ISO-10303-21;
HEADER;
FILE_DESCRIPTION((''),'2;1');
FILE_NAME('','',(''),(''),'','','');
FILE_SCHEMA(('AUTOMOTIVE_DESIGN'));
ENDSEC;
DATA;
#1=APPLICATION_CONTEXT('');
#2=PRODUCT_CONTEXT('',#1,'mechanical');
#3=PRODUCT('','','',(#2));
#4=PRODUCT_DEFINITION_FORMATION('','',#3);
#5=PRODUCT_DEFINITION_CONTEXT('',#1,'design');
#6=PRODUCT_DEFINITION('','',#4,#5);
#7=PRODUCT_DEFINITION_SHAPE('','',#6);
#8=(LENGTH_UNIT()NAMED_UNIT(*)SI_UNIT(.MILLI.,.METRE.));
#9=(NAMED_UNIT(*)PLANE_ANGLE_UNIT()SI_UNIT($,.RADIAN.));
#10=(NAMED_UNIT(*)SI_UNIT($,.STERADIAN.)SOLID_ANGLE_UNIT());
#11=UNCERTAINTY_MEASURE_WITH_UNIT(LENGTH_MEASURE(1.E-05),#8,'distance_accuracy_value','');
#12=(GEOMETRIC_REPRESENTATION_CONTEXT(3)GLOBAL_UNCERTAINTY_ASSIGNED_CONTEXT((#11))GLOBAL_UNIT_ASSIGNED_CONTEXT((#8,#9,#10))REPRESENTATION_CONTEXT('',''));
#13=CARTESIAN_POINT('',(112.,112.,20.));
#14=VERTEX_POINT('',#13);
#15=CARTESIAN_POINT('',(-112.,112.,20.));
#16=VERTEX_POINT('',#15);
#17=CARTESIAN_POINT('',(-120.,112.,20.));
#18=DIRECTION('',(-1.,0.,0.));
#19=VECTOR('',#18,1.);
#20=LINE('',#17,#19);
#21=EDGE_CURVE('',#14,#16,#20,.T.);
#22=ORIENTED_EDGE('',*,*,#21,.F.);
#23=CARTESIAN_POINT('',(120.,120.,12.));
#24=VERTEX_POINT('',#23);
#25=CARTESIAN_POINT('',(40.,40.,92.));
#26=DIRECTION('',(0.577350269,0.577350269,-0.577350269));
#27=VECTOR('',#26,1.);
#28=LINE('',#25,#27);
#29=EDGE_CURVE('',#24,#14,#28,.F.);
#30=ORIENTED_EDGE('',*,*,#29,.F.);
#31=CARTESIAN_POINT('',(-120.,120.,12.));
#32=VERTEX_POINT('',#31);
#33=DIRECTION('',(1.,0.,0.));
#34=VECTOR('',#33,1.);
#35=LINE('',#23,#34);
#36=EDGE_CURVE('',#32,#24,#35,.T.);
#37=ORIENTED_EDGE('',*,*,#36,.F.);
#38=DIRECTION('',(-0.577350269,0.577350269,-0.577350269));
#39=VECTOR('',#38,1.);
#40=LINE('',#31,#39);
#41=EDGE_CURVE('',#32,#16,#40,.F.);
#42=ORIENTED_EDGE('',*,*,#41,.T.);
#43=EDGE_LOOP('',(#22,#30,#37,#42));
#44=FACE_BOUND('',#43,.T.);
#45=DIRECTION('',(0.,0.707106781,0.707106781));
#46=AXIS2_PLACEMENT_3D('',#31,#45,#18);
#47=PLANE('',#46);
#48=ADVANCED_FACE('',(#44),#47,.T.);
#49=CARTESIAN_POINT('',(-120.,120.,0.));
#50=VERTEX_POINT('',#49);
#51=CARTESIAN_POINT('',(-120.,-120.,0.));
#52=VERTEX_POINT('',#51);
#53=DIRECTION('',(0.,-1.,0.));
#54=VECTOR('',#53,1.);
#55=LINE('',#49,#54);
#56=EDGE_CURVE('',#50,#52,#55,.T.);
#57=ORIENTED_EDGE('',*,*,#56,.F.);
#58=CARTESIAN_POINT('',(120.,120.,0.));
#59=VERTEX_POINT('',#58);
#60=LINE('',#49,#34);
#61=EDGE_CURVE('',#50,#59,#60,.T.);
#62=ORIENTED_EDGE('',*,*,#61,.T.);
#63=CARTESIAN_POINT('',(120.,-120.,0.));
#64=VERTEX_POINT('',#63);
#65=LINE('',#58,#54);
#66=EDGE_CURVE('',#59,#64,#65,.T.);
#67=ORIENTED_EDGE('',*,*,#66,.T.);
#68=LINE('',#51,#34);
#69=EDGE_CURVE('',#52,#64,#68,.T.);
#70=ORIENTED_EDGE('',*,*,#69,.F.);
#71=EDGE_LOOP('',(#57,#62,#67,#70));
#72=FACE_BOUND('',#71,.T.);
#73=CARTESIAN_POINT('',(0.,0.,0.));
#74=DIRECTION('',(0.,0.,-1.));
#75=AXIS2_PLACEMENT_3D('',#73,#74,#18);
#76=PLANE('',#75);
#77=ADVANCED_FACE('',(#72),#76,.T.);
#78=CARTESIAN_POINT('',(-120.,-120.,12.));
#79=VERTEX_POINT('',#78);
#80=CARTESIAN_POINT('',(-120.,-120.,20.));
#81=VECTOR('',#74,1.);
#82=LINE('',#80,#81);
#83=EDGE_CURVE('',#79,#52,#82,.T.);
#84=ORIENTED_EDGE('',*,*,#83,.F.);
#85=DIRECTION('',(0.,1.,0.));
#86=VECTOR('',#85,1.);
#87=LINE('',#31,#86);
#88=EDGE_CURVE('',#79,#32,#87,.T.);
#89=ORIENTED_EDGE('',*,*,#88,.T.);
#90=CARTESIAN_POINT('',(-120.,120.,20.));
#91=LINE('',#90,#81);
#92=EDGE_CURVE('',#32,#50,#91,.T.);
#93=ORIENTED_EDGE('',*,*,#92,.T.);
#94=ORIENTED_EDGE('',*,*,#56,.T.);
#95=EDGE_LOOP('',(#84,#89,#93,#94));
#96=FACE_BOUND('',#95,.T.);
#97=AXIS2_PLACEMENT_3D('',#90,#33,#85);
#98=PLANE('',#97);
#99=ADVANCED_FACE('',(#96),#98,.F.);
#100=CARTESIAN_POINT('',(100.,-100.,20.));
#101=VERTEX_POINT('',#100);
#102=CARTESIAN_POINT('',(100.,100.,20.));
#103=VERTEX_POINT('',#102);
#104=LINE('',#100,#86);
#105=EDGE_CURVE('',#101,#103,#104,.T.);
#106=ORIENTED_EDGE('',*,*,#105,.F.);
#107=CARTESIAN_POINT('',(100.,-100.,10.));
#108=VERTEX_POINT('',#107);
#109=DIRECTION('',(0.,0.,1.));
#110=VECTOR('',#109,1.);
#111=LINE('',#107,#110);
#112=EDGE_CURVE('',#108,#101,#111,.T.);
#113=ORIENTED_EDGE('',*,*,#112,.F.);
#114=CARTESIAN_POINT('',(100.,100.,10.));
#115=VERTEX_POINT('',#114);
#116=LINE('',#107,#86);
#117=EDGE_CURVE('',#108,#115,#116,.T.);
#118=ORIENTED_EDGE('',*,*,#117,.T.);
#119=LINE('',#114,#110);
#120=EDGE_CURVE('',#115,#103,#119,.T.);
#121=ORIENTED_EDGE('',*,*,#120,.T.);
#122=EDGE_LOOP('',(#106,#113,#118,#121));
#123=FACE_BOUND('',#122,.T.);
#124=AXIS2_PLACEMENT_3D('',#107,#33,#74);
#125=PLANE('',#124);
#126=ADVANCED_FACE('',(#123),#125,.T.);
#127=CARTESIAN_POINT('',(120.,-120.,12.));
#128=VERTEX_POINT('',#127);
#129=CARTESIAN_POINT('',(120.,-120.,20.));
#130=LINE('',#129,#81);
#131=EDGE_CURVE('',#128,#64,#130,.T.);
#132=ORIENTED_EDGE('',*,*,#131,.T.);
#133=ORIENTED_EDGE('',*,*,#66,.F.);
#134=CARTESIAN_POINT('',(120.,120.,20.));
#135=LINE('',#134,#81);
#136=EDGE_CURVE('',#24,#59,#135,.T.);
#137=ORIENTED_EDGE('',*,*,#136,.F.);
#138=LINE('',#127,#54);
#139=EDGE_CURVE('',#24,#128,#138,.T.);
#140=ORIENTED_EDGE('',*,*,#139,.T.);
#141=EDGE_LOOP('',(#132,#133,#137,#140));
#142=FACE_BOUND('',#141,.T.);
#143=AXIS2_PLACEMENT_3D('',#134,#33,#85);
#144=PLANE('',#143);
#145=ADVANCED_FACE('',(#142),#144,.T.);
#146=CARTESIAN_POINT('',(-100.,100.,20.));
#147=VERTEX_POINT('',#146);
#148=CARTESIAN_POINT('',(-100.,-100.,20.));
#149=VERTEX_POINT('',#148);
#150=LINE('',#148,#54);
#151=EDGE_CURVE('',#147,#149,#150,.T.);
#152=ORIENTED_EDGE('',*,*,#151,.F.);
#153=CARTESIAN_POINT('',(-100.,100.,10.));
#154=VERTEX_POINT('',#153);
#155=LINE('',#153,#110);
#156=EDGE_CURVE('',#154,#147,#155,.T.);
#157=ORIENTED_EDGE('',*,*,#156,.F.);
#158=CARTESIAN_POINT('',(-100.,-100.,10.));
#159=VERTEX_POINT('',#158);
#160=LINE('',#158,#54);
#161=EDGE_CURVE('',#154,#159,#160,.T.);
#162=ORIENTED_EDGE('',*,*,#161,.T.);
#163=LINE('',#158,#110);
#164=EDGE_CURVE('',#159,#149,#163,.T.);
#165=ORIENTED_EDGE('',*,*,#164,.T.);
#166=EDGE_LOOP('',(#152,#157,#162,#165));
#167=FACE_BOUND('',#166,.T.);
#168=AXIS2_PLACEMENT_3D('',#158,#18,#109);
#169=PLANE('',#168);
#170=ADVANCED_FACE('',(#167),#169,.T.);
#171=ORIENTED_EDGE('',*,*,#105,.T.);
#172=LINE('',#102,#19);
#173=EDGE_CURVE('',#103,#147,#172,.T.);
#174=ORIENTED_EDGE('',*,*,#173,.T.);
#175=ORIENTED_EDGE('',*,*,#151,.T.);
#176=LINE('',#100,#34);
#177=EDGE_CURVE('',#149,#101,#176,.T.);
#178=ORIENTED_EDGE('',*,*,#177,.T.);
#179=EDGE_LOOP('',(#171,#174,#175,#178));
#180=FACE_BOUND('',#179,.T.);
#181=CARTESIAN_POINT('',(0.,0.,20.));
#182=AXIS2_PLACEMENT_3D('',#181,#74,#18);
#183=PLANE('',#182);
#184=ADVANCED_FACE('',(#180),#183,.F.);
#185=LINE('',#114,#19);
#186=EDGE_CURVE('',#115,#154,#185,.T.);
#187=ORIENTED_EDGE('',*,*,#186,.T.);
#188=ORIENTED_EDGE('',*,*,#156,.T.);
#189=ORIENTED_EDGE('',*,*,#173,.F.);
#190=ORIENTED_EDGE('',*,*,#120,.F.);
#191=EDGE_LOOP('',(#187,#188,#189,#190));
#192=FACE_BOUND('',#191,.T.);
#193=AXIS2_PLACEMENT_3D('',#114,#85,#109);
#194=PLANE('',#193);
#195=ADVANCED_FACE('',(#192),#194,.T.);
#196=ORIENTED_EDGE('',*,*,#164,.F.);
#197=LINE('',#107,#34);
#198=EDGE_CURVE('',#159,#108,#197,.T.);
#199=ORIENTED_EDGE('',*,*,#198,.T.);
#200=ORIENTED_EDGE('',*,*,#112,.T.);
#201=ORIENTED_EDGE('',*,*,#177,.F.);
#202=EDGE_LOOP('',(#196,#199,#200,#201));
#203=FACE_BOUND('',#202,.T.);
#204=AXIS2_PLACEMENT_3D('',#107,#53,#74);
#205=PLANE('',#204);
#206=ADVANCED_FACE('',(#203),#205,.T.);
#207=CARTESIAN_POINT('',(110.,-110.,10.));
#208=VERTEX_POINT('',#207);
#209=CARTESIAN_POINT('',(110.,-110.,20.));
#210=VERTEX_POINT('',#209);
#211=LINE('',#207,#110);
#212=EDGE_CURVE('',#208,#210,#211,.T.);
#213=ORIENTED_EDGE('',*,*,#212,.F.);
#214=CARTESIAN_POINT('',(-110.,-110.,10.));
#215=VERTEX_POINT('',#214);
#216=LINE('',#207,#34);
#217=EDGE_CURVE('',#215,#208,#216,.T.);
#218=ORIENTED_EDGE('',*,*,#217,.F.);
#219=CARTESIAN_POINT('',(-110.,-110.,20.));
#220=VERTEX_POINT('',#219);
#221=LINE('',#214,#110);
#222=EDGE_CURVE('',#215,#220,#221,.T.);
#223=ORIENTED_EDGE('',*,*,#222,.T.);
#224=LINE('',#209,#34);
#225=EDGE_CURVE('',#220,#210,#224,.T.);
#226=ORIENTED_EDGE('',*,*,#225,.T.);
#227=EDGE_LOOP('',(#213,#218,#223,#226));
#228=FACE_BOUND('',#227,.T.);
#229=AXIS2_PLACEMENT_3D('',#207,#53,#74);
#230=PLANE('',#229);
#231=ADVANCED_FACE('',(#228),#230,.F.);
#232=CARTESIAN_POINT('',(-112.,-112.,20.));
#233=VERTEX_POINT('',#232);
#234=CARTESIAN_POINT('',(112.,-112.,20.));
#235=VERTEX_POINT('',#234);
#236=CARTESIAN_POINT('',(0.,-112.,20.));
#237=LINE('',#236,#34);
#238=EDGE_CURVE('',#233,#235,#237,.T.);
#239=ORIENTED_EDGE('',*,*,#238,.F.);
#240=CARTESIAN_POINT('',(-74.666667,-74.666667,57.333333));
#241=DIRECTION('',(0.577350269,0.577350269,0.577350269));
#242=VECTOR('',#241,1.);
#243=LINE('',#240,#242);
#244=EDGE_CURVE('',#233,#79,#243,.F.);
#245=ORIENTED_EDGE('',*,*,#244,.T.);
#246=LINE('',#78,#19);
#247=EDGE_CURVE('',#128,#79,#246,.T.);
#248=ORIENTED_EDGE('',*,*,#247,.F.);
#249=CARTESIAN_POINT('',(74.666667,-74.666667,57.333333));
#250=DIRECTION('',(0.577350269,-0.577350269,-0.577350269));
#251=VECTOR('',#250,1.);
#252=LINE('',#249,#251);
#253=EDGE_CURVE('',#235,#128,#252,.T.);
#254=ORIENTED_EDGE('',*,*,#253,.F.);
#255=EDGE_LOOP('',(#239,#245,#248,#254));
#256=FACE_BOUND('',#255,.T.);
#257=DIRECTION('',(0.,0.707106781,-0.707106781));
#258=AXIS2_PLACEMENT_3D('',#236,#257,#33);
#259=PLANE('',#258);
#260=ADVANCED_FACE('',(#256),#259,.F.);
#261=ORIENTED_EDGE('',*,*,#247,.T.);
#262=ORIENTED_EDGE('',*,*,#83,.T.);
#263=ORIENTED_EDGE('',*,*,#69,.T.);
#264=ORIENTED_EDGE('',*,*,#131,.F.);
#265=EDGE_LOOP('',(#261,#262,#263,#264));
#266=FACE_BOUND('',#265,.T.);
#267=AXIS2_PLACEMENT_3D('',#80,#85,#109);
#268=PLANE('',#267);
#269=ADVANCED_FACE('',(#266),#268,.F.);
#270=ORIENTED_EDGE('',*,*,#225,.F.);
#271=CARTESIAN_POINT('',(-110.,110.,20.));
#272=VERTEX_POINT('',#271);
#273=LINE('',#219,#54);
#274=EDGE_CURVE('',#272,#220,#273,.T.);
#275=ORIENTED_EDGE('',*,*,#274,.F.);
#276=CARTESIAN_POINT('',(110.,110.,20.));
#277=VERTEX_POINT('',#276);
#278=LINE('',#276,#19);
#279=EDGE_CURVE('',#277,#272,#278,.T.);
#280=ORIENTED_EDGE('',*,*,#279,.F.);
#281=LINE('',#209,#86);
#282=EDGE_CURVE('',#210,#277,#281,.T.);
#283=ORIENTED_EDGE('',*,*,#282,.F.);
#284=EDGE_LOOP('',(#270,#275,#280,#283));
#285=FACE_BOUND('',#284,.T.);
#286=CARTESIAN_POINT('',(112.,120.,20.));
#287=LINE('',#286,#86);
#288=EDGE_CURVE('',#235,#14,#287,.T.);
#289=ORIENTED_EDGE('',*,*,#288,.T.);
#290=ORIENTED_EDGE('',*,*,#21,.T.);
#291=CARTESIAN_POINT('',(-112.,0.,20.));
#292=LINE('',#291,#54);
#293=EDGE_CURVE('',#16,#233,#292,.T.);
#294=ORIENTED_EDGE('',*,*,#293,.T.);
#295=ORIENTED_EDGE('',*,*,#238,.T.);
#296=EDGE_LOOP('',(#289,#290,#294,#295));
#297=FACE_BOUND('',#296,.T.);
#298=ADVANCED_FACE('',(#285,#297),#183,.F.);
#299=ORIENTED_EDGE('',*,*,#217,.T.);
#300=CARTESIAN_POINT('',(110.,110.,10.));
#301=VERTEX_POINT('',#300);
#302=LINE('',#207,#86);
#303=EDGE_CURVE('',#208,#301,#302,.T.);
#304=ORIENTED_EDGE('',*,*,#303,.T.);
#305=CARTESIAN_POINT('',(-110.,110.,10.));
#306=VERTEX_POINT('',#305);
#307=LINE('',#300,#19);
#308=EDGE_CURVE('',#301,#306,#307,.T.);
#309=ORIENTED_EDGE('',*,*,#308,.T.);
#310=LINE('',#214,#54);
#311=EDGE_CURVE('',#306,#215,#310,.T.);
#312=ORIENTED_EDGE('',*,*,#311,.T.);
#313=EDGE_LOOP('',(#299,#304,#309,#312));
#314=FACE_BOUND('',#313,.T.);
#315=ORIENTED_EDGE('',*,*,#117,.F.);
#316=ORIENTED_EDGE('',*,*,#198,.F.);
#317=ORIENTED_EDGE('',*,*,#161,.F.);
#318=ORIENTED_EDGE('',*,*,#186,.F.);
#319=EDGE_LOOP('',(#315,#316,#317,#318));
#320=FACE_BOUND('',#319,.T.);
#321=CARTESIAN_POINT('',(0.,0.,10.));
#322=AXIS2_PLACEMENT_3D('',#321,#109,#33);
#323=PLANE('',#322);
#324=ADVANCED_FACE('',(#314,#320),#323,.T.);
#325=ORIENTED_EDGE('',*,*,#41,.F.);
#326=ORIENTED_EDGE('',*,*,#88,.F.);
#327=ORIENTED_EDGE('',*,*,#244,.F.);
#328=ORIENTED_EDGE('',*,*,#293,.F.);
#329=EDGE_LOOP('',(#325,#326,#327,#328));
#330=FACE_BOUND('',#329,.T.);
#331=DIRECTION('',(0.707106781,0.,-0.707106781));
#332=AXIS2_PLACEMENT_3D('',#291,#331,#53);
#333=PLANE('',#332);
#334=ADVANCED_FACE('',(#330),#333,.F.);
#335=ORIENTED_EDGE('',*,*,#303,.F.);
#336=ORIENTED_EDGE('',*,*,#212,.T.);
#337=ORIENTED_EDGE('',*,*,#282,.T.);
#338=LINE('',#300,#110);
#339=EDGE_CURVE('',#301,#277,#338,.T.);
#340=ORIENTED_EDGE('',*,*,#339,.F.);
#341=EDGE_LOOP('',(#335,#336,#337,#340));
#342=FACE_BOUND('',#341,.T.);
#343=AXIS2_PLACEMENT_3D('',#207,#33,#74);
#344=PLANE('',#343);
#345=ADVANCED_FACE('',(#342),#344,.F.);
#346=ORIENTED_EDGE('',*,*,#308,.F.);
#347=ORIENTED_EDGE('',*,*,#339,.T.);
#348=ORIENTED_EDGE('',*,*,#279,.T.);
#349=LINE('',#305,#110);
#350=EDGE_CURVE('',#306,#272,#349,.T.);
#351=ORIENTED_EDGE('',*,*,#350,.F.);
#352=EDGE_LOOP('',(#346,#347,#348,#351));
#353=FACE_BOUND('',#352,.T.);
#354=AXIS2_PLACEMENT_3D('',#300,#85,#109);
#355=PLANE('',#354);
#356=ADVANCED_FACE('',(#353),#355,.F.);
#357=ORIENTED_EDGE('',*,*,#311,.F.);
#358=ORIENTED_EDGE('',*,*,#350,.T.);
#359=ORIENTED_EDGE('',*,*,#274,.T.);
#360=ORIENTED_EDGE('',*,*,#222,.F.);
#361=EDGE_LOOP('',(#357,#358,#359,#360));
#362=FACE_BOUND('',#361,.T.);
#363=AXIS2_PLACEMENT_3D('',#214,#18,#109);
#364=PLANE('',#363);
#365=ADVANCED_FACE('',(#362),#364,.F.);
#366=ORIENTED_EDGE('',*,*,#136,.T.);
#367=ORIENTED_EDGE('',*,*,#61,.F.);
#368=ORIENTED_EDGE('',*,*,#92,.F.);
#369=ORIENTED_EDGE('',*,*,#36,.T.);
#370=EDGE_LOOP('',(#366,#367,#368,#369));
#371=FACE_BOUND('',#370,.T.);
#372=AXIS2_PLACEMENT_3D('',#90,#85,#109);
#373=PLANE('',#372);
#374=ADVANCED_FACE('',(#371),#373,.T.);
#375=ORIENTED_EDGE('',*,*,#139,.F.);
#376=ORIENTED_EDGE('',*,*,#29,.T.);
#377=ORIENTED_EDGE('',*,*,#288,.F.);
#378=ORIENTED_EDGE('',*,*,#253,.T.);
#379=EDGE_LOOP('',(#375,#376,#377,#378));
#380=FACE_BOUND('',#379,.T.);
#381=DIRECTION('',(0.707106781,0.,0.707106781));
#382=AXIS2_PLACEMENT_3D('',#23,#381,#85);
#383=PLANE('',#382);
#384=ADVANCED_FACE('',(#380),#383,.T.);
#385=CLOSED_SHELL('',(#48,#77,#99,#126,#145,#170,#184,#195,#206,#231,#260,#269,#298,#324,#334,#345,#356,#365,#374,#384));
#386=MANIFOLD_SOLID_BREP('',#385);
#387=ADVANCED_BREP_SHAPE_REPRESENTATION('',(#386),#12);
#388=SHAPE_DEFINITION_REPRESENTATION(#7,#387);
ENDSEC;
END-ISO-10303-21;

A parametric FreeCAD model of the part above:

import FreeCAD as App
import Part
import Sketcher


def edges_at(feature, points):
    """Names of the edges that pass closest to the given points."""
    edges = feature.Shape.Edges
    near = lambda p: min(range(len(edges)), key=lambda i: edges[i].distToShape(Part.Vertex(*p))[0])
    return sorted({f"Edge{near(p) + 1}" for p in points})

doc = App.newDocument("Part")
body = doc.addObject("PartDesign::Body", "Body")

# Sketch on XY plane
sketch1 = body.newObject("Sketcher::SketchObject", "Sketch")
sketch1.AttachmentSupport = (doc.getObject("XY_Plane"), [""])
sketch1.MapMode = "FlatFace"
sketch1.addGeometry([
    Part.LineSegment(App.Vector(-120, 120, 0), App.Vector(-120, -120, 0)),
    Part.LineSegment(App.Vector(-120, -120, 0), App.Vector(120, -120, 0)),
    Part.LineSegment(App.Vector(120, -120, 0), App.Vector(120, 120, 0)),
    Part.LineSegment(App.Vector(120, 120, 0), App.Vector(-120, 120, 0)),
], False)
sketch1.addConstraint([
    Sketcher.Constraint("Coincident", 0, 2, 1, 1),
    Sketcher.Constraint("Coincident", 1, 2, 2, 1),
    Sketcher.Constraint("Coincident", 2, 2, 3, 1),
    Sketcher.Constraint("Coincident", 3, 2, 0, 1),
    Sketcher.Constraint("Vertical", 0),
    Sketcher.Constraint("Horizontal", 1),
    Sketcher.Constraint("Vertical", 2),
    Sketcher.Constraint("Horizontal", 3),
    Sketcher.Constraint("Symmetric", 0, 2, 2, 2, -1, 1),
    Sketcher.Constraint("Equal", 3, 0),
    Sketcher.Constraint("DistanceX", 1, 1, 1, 2, 240.0),
])
pad1 = body.newObject("PartDesign::Pad", "Pad")
pad1.Profile = sketch1
pad1.Length = 20
doc.recompute()

chamfer = body.newObject("PartDesign::Chamfer", "Chamfer")
chamfer.Base = (pad1, edges_at(pad1, [
    (0, -120, 20),
    (-120, 0, 20),
    (0, 120, 20),
    (120, 0, 20),
]))
chamfer.Size = 8

# Sketch on XY plane
sketch2 = body.newObject("Sketcher::SketchObject", "Sketch001")
sketch2.AttachmentSupport = (doc.getObject("XY_Plane"), [""])
sketch2.MapMode = "FlatFace"
sketch2.AttachmentOffset = App.Placement(App.Vector(0, 0, 20), App.Rotation())
sketch2.addGeometry([
    Part.LineSegment(App.Vector(-110, 110, 0), App.Vector(-110, -110, 0)),  # 0
    Part.LineSegment(App.Vector(-110, -110, 0), App.Vector(110, -110, 0)),  # 1
    Part.LineSegment(App.Vector(110, -110, 0), App.Vector(110, 110, 0)),  # 2
    Part.LineSegment(App.Vector(110, 110, 0), App.Vector(-110, 110, 0)),  # 3
    Part.LineSegment(App.Vector(100, -100, 0), App.Vector(-100, -100, 0)),  # 4
    Part.LineSegment(App.Vector(-100, -100, 0), App.Vector(-100, 100, 0)),  # 5
    Part.LineSegment(App.Vector(-100, 100, 0), App.Vector(100, 100, 0)),  # 6
    Part.LineSegment(App.Vector(100, 100, 0), App.Vector(100, -100, 0)),  # 7
], False)
sketch2.addConstraint([
    Sketcher.Constraint("Coincident", 0, 2, 1, 1),
    Sketcher.Constraint("Coincident", 1, 2, 2, 1),
    Sketcher.Constraint("Coincident", 2, 2, 3, 1),
    Sketcher.Constraint("Coincident", 3, 2, 0, 1),
    Sketcher.Constraint("Coincident", 4, 2, 5, 1),
    Sketcher.Constraint("Coincident", 5, 2, 6, 1),
    Sketcher.Constraint("Coincident", 6, 2, 7, 1),
    Sketcher.Constraint("Coincident", 7, 2, 4, 1),
    Sketcher.Constraint("Vertical", 0),
    Sketcher.Constraint("Horizontal", 1),
    Sketcher.Constraint("Vertical", 2),
    Sketcher.Constraint("Horizontal", 3),
    Sketcher.Constraint("Horizontal", 4),
    Sketcher.Constraint("Vertical", 5),
    Sketcher.Constraint("Horizontal", 6),
    Sketcher.Constraint("Vertical", 7),
    Sketcher.Constraint("Symmetric", 0, 2, 2, 2, -1, 1),
    Sketcher.Constraint("Symmetric", 4, 2, 6, 2, -1, 1),
    Sketcher.Constraint("Equal", 3, 0),
    Sketcher.Constraint("Equal", 6, 5),
    Sketcher.Constraint("DistanceX", 1, 1, 1, 2, 220.0),
    Sketcher.Constraint("DistanceX", 4, 2, 4, 1, 200.0),
])
pocket1 = body.newObject("PartDesign::Pocket", "Pocket")
pocket1.Profile = sketch2
pocket1.Length = 10

doc.recompute()
